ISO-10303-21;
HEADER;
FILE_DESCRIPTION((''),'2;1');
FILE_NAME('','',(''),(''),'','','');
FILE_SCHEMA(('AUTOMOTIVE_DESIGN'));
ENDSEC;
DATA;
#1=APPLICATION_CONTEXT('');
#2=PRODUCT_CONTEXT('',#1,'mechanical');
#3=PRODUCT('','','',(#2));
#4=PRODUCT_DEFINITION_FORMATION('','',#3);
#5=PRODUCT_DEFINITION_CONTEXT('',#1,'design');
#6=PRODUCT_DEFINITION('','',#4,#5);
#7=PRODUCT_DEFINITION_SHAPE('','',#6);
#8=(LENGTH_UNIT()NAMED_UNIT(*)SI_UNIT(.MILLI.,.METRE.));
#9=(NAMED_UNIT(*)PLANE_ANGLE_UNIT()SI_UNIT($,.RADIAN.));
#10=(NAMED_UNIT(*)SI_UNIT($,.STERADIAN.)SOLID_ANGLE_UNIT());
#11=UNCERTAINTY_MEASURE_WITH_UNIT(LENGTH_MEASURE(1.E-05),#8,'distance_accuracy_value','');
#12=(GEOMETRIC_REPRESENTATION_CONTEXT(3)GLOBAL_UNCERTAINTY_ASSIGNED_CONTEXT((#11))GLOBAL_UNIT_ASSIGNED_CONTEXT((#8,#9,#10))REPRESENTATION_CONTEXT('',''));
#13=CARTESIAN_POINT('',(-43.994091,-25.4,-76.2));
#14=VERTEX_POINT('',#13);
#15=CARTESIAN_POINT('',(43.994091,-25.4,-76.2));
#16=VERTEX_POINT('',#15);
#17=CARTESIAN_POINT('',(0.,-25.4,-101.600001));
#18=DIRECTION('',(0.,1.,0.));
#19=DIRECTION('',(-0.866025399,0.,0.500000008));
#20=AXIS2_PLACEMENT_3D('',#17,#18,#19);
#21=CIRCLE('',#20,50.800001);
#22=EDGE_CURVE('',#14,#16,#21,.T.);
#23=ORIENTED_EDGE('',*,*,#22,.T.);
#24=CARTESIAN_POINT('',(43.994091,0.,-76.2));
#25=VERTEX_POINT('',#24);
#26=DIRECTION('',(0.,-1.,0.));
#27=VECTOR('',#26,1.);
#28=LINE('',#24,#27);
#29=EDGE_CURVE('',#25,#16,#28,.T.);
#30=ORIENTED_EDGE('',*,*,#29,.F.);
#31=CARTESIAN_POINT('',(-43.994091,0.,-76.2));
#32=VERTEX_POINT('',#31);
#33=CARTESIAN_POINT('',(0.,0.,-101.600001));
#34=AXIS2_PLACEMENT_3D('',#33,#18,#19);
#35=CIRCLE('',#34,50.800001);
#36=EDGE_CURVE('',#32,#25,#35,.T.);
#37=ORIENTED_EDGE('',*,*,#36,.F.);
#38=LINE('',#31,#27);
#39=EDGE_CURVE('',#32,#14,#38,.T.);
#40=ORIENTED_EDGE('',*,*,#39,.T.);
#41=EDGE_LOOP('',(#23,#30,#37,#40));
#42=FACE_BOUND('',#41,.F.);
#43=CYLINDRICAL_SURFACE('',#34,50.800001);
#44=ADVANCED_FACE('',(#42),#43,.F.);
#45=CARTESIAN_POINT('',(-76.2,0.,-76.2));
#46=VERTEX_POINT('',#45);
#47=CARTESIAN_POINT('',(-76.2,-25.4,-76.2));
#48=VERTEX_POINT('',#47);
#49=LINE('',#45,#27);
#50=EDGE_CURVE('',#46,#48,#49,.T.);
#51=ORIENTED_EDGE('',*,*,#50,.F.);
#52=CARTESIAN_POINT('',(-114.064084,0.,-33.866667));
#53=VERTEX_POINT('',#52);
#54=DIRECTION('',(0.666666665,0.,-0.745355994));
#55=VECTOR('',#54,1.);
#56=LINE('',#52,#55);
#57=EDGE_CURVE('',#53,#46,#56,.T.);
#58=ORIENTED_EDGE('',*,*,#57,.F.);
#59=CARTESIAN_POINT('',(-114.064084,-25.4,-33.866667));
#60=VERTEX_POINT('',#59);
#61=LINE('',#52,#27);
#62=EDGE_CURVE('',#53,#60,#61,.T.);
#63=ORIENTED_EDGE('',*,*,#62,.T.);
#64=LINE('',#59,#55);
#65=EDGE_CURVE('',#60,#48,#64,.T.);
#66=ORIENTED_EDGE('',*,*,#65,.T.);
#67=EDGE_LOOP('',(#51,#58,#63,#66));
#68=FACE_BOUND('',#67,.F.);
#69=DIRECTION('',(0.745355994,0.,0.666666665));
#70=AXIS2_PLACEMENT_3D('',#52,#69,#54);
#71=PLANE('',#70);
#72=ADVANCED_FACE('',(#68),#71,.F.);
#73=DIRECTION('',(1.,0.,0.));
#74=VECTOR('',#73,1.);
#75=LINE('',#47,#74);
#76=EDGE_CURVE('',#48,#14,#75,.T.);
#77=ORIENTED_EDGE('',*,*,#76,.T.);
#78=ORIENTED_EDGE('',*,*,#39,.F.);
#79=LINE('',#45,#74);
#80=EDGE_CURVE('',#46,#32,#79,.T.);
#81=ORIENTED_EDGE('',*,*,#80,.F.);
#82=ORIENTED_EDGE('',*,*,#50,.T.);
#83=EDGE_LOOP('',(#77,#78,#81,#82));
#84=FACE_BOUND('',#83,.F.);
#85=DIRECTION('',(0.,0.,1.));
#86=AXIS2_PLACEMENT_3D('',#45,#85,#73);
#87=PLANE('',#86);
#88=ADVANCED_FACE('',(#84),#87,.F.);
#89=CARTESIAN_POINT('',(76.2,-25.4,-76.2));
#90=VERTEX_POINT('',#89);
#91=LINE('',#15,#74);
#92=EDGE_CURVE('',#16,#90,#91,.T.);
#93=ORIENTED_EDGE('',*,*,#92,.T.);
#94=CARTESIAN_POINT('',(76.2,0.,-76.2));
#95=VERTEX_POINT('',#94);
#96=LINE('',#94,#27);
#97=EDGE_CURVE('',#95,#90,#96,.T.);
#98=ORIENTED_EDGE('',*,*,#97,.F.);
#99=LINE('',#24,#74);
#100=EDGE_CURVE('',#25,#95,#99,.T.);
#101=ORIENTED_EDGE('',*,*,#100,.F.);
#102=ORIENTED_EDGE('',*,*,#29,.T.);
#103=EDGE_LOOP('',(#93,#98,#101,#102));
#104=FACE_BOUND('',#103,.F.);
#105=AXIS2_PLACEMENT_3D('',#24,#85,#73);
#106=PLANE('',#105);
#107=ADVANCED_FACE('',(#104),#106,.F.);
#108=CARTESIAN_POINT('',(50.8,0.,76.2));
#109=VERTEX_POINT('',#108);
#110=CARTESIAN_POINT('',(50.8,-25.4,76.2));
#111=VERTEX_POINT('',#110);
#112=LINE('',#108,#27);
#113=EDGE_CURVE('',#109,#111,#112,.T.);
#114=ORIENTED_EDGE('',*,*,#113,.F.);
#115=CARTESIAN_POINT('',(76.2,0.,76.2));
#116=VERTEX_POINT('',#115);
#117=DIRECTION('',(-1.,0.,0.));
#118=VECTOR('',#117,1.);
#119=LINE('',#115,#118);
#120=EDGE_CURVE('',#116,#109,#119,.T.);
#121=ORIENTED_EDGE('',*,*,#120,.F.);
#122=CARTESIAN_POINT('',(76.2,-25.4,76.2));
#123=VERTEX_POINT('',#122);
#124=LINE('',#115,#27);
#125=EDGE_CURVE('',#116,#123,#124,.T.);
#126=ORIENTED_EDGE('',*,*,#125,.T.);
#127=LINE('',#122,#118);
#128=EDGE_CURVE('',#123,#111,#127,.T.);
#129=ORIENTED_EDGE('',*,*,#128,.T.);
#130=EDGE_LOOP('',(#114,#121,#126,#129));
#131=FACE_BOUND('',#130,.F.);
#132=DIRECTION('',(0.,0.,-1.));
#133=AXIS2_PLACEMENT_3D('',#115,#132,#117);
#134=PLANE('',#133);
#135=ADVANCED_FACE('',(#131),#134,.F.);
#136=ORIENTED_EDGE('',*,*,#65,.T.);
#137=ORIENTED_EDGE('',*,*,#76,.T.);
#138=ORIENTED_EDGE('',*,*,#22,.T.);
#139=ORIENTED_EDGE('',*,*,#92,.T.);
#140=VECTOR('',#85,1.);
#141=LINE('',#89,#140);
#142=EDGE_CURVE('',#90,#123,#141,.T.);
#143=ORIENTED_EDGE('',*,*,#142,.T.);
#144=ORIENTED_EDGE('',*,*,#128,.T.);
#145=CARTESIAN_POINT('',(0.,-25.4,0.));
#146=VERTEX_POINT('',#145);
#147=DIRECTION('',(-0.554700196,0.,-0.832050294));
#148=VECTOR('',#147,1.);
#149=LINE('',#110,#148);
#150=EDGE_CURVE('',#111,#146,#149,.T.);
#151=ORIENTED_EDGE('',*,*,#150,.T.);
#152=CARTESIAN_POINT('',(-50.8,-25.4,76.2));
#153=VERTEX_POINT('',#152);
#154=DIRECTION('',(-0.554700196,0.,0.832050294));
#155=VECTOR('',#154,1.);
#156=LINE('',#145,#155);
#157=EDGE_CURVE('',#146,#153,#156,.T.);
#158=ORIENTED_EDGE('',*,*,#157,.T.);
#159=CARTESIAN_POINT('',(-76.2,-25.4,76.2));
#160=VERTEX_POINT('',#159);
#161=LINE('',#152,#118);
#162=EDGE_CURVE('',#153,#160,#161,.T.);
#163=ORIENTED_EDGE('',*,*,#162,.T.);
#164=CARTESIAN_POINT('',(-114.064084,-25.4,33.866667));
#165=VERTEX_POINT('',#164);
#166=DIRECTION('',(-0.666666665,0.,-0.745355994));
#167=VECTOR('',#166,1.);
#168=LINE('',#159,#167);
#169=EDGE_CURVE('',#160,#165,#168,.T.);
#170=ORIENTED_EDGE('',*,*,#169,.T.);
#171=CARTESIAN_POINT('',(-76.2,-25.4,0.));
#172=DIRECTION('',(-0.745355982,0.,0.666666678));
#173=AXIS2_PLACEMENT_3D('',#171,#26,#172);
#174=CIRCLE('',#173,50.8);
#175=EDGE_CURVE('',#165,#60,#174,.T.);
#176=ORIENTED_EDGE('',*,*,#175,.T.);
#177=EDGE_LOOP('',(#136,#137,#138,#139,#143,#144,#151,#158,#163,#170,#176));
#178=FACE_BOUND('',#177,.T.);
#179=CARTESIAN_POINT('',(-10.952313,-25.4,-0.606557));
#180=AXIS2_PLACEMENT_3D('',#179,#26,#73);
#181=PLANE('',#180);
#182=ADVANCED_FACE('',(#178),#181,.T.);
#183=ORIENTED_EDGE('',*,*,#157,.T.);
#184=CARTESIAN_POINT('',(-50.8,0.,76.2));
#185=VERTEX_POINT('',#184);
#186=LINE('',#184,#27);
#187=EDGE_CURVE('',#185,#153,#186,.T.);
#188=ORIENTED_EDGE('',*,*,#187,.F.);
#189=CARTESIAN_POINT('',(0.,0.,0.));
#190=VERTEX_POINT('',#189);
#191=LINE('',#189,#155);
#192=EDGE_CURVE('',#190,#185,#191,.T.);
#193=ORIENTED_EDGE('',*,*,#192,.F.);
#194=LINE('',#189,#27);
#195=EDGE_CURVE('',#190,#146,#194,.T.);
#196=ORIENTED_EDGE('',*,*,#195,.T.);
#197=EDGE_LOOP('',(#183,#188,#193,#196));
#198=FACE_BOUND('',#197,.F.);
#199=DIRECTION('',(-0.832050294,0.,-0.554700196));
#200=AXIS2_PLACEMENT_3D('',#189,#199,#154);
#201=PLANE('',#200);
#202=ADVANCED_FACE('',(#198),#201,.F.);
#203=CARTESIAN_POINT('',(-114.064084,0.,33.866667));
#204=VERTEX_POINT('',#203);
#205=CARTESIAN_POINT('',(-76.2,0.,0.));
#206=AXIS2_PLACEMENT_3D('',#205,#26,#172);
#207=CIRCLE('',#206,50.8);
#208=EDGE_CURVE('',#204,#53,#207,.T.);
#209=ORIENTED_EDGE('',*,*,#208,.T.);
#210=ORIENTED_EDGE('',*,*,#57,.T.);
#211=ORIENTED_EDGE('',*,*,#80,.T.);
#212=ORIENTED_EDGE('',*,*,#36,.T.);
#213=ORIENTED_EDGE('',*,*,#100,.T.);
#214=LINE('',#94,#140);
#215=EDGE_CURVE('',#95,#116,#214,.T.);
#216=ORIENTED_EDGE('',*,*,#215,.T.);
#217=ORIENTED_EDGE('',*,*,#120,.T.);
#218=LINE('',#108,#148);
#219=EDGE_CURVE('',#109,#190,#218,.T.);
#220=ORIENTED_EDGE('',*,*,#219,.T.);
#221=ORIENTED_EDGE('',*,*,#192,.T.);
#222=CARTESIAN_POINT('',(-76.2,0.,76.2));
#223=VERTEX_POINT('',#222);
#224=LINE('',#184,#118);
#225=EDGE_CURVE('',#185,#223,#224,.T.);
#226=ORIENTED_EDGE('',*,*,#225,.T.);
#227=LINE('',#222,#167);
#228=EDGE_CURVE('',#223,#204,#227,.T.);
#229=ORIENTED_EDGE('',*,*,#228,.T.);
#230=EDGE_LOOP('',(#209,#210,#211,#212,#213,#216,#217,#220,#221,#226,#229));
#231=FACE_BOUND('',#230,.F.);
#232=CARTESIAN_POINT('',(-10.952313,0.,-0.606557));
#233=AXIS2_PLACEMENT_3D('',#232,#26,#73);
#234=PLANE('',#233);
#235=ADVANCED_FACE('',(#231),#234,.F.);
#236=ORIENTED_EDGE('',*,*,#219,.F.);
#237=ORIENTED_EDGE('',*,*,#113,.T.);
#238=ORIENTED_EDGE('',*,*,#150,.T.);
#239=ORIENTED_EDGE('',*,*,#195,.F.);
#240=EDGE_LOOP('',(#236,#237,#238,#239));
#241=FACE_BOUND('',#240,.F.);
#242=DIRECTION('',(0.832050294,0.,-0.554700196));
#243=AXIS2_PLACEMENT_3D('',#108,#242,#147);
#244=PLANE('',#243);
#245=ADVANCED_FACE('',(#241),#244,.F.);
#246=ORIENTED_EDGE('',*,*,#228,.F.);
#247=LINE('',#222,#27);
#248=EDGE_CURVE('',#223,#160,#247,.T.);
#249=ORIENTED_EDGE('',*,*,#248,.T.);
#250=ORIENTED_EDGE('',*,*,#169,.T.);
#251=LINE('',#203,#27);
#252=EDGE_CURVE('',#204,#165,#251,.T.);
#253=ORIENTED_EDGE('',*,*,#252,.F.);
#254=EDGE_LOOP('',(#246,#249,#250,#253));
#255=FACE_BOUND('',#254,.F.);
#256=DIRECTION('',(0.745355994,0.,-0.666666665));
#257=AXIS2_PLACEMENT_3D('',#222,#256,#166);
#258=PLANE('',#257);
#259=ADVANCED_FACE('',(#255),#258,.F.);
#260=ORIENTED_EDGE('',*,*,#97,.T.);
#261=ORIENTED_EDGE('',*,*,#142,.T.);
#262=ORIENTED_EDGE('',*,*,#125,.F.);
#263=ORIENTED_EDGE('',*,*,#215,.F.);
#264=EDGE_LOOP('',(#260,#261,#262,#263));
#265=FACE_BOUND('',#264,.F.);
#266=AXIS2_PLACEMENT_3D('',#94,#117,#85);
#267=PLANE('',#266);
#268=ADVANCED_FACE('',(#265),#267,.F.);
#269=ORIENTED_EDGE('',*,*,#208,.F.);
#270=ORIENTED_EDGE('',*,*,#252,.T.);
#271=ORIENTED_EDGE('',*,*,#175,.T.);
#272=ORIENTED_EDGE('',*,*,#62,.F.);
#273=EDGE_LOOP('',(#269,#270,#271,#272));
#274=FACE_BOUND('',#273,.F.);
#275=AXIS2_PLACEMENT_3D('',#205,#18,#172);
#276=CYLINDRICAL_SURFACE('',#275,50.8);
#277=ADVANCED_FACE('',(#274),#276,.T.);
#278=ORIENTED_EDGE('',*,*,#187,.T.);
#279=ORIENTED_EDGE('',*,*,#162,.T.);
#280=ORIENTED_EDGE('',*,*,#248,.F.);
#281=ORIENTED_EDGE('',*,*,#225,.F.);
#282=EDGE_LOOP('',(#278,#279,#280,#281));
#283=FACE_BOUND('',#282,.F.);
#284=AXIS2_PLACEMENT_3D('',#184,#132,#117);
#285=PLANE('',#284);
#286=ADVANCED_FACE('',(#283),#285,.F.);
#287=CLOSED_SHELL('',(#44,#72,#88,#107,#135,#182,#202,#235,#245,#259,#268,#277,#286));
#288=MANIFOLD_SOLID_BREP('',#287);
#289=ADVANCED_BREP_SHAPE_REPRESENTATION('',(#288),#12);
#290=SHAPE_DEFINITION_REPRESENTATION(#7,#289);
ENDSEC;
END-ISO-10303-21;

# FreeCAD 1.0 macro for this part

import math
import FreeCAD as App
import Part
import Sketcher

V = App.Vector
Q = App.Units.Quantity

doc = App.newDocument("Part")
body = doc.addObject("PartDesign::Body", "Body")

sketch1 = body.newObject("Sketcher::SketchObject", "Sketch")
sketch1.AttachmentSupport = (doc.getObject("XZ_Plane"), [""])
sketch1.MapMode = "FlatFace"
sketch1.addGeometry([
    Part.LineSegment(V(-51, 76, 0), V(-76, 76, 0)),
    Part.LineSegment(V(-76, 76, 0), V(-114, 34, 0)),
    Part.ArcOfCircle(Part.Circle(V(-76, 0, 0), V(0, 0, 1), 51), math.radians(138), math.radians(222)),
    Part.LineSegment(V(-114, -34, 0), V(-76, -76, 0)),
    Part.LineSegment(V(-76, -76, 0), V(-44, -76, 0)),
    Part.ArcOfCircle(Part.Circle(V(0, -102, 0), V(0, 0, 1), 51), math.radians(30), math.radians(150)),
    Part.LineSegment(V(44, -76, 0), V(76, -76, 0)),
    Part.LineSegment(V(76, -76, 0), V(76, 76, 0)),
    Part.LineSegment(V(76, 76, 0), V(51, 76, 0)),
    Part.LineSegment(V(51, 76, 0), V(0, 0, 0)),
    Part.LineSegment(V(0, 0, 0), V(-51, 76, 0)),
], False)
sketch1.addConstraint([
    Sketcher.Constraint("Coincident", 0, 2, 1, 1),
    Sketcher.Constraint("Tangent", 1, 2, 2, 1),
    Sketcher.Constraint("Tangent", 2, 2, 3, 1),
    Sketcher.Constraint("Coincident", 3, 2, 4, 1),
    Sketcher.Constraint("Coincident", 4, 2, 5, 2),
    Sketcher.Constraint("Coincident", 5, 1, 6, 1),
    Sketcher.Constraint("Coincident", 6, 2, 7, 1),
    Sketcher.Constraint("Coincident", 7, 2, 8, 1),
    Sketcher.Constraint("Coincident", 8, 2, 9, 1),
    Sketcher.Constraint("Coincident", 9, 2, 10, 1),
    Sketcher.Constraint("Coincident", 10, 2, 0, 1),
    Sketcher.Constraint("Horizontal", 0),
    Sketcher.Constraint("Horizontal", 4),
    Sketcher.Constraint("Horizontal", 6),
    Sketcher.Constraint("Vertical", 7),
    Sketcher.Constraint("Horizontal", 8),
    Sketcher.Constraint("Coincident", 9, 2, -1, 1),
    Sketcher.Constraint("Equal", 2, 5),
    Sketcher.Constraint("Symmetric", 0, 2, 6, 2, -1, 1),
    Sketcher.Constraint("Symmetric", 3, 2, 7, 2, -1, 1),
    Sketcher.Constraint("Symmetric", 4, 2, 5, 1, -2),
    Sketcher.Constraint("PointOnObject", 2, 3, -1),
    Sketcher.Constraint("Vertical", 2, 3, 0, 2),
    Sketcher.Constraint("Equal", 0, 8),
    Sketcher.Constraint("Radius", 2, Q("2 in")),
    Sketcher.Constraint("DistanceX", 0, 2, 0, 1, Q("1 in")),
    Sketcher.Constraint("DistanceY", 7, 1, 7, 2, Q("6 in")),
    Sketcher.Constraint("DistanceX", 2, 3, -1, 1, Q("3 in")),
    Sketcher.Constraint("DistanceY", 5, 3, -1, 1, Q("4 in")),
])
pad1 = body.newObject("PartDesign::Pad", "Pad")
pad1.Profile = sketch1
pad1.Length = Q("1 in")

doc.recompute()
